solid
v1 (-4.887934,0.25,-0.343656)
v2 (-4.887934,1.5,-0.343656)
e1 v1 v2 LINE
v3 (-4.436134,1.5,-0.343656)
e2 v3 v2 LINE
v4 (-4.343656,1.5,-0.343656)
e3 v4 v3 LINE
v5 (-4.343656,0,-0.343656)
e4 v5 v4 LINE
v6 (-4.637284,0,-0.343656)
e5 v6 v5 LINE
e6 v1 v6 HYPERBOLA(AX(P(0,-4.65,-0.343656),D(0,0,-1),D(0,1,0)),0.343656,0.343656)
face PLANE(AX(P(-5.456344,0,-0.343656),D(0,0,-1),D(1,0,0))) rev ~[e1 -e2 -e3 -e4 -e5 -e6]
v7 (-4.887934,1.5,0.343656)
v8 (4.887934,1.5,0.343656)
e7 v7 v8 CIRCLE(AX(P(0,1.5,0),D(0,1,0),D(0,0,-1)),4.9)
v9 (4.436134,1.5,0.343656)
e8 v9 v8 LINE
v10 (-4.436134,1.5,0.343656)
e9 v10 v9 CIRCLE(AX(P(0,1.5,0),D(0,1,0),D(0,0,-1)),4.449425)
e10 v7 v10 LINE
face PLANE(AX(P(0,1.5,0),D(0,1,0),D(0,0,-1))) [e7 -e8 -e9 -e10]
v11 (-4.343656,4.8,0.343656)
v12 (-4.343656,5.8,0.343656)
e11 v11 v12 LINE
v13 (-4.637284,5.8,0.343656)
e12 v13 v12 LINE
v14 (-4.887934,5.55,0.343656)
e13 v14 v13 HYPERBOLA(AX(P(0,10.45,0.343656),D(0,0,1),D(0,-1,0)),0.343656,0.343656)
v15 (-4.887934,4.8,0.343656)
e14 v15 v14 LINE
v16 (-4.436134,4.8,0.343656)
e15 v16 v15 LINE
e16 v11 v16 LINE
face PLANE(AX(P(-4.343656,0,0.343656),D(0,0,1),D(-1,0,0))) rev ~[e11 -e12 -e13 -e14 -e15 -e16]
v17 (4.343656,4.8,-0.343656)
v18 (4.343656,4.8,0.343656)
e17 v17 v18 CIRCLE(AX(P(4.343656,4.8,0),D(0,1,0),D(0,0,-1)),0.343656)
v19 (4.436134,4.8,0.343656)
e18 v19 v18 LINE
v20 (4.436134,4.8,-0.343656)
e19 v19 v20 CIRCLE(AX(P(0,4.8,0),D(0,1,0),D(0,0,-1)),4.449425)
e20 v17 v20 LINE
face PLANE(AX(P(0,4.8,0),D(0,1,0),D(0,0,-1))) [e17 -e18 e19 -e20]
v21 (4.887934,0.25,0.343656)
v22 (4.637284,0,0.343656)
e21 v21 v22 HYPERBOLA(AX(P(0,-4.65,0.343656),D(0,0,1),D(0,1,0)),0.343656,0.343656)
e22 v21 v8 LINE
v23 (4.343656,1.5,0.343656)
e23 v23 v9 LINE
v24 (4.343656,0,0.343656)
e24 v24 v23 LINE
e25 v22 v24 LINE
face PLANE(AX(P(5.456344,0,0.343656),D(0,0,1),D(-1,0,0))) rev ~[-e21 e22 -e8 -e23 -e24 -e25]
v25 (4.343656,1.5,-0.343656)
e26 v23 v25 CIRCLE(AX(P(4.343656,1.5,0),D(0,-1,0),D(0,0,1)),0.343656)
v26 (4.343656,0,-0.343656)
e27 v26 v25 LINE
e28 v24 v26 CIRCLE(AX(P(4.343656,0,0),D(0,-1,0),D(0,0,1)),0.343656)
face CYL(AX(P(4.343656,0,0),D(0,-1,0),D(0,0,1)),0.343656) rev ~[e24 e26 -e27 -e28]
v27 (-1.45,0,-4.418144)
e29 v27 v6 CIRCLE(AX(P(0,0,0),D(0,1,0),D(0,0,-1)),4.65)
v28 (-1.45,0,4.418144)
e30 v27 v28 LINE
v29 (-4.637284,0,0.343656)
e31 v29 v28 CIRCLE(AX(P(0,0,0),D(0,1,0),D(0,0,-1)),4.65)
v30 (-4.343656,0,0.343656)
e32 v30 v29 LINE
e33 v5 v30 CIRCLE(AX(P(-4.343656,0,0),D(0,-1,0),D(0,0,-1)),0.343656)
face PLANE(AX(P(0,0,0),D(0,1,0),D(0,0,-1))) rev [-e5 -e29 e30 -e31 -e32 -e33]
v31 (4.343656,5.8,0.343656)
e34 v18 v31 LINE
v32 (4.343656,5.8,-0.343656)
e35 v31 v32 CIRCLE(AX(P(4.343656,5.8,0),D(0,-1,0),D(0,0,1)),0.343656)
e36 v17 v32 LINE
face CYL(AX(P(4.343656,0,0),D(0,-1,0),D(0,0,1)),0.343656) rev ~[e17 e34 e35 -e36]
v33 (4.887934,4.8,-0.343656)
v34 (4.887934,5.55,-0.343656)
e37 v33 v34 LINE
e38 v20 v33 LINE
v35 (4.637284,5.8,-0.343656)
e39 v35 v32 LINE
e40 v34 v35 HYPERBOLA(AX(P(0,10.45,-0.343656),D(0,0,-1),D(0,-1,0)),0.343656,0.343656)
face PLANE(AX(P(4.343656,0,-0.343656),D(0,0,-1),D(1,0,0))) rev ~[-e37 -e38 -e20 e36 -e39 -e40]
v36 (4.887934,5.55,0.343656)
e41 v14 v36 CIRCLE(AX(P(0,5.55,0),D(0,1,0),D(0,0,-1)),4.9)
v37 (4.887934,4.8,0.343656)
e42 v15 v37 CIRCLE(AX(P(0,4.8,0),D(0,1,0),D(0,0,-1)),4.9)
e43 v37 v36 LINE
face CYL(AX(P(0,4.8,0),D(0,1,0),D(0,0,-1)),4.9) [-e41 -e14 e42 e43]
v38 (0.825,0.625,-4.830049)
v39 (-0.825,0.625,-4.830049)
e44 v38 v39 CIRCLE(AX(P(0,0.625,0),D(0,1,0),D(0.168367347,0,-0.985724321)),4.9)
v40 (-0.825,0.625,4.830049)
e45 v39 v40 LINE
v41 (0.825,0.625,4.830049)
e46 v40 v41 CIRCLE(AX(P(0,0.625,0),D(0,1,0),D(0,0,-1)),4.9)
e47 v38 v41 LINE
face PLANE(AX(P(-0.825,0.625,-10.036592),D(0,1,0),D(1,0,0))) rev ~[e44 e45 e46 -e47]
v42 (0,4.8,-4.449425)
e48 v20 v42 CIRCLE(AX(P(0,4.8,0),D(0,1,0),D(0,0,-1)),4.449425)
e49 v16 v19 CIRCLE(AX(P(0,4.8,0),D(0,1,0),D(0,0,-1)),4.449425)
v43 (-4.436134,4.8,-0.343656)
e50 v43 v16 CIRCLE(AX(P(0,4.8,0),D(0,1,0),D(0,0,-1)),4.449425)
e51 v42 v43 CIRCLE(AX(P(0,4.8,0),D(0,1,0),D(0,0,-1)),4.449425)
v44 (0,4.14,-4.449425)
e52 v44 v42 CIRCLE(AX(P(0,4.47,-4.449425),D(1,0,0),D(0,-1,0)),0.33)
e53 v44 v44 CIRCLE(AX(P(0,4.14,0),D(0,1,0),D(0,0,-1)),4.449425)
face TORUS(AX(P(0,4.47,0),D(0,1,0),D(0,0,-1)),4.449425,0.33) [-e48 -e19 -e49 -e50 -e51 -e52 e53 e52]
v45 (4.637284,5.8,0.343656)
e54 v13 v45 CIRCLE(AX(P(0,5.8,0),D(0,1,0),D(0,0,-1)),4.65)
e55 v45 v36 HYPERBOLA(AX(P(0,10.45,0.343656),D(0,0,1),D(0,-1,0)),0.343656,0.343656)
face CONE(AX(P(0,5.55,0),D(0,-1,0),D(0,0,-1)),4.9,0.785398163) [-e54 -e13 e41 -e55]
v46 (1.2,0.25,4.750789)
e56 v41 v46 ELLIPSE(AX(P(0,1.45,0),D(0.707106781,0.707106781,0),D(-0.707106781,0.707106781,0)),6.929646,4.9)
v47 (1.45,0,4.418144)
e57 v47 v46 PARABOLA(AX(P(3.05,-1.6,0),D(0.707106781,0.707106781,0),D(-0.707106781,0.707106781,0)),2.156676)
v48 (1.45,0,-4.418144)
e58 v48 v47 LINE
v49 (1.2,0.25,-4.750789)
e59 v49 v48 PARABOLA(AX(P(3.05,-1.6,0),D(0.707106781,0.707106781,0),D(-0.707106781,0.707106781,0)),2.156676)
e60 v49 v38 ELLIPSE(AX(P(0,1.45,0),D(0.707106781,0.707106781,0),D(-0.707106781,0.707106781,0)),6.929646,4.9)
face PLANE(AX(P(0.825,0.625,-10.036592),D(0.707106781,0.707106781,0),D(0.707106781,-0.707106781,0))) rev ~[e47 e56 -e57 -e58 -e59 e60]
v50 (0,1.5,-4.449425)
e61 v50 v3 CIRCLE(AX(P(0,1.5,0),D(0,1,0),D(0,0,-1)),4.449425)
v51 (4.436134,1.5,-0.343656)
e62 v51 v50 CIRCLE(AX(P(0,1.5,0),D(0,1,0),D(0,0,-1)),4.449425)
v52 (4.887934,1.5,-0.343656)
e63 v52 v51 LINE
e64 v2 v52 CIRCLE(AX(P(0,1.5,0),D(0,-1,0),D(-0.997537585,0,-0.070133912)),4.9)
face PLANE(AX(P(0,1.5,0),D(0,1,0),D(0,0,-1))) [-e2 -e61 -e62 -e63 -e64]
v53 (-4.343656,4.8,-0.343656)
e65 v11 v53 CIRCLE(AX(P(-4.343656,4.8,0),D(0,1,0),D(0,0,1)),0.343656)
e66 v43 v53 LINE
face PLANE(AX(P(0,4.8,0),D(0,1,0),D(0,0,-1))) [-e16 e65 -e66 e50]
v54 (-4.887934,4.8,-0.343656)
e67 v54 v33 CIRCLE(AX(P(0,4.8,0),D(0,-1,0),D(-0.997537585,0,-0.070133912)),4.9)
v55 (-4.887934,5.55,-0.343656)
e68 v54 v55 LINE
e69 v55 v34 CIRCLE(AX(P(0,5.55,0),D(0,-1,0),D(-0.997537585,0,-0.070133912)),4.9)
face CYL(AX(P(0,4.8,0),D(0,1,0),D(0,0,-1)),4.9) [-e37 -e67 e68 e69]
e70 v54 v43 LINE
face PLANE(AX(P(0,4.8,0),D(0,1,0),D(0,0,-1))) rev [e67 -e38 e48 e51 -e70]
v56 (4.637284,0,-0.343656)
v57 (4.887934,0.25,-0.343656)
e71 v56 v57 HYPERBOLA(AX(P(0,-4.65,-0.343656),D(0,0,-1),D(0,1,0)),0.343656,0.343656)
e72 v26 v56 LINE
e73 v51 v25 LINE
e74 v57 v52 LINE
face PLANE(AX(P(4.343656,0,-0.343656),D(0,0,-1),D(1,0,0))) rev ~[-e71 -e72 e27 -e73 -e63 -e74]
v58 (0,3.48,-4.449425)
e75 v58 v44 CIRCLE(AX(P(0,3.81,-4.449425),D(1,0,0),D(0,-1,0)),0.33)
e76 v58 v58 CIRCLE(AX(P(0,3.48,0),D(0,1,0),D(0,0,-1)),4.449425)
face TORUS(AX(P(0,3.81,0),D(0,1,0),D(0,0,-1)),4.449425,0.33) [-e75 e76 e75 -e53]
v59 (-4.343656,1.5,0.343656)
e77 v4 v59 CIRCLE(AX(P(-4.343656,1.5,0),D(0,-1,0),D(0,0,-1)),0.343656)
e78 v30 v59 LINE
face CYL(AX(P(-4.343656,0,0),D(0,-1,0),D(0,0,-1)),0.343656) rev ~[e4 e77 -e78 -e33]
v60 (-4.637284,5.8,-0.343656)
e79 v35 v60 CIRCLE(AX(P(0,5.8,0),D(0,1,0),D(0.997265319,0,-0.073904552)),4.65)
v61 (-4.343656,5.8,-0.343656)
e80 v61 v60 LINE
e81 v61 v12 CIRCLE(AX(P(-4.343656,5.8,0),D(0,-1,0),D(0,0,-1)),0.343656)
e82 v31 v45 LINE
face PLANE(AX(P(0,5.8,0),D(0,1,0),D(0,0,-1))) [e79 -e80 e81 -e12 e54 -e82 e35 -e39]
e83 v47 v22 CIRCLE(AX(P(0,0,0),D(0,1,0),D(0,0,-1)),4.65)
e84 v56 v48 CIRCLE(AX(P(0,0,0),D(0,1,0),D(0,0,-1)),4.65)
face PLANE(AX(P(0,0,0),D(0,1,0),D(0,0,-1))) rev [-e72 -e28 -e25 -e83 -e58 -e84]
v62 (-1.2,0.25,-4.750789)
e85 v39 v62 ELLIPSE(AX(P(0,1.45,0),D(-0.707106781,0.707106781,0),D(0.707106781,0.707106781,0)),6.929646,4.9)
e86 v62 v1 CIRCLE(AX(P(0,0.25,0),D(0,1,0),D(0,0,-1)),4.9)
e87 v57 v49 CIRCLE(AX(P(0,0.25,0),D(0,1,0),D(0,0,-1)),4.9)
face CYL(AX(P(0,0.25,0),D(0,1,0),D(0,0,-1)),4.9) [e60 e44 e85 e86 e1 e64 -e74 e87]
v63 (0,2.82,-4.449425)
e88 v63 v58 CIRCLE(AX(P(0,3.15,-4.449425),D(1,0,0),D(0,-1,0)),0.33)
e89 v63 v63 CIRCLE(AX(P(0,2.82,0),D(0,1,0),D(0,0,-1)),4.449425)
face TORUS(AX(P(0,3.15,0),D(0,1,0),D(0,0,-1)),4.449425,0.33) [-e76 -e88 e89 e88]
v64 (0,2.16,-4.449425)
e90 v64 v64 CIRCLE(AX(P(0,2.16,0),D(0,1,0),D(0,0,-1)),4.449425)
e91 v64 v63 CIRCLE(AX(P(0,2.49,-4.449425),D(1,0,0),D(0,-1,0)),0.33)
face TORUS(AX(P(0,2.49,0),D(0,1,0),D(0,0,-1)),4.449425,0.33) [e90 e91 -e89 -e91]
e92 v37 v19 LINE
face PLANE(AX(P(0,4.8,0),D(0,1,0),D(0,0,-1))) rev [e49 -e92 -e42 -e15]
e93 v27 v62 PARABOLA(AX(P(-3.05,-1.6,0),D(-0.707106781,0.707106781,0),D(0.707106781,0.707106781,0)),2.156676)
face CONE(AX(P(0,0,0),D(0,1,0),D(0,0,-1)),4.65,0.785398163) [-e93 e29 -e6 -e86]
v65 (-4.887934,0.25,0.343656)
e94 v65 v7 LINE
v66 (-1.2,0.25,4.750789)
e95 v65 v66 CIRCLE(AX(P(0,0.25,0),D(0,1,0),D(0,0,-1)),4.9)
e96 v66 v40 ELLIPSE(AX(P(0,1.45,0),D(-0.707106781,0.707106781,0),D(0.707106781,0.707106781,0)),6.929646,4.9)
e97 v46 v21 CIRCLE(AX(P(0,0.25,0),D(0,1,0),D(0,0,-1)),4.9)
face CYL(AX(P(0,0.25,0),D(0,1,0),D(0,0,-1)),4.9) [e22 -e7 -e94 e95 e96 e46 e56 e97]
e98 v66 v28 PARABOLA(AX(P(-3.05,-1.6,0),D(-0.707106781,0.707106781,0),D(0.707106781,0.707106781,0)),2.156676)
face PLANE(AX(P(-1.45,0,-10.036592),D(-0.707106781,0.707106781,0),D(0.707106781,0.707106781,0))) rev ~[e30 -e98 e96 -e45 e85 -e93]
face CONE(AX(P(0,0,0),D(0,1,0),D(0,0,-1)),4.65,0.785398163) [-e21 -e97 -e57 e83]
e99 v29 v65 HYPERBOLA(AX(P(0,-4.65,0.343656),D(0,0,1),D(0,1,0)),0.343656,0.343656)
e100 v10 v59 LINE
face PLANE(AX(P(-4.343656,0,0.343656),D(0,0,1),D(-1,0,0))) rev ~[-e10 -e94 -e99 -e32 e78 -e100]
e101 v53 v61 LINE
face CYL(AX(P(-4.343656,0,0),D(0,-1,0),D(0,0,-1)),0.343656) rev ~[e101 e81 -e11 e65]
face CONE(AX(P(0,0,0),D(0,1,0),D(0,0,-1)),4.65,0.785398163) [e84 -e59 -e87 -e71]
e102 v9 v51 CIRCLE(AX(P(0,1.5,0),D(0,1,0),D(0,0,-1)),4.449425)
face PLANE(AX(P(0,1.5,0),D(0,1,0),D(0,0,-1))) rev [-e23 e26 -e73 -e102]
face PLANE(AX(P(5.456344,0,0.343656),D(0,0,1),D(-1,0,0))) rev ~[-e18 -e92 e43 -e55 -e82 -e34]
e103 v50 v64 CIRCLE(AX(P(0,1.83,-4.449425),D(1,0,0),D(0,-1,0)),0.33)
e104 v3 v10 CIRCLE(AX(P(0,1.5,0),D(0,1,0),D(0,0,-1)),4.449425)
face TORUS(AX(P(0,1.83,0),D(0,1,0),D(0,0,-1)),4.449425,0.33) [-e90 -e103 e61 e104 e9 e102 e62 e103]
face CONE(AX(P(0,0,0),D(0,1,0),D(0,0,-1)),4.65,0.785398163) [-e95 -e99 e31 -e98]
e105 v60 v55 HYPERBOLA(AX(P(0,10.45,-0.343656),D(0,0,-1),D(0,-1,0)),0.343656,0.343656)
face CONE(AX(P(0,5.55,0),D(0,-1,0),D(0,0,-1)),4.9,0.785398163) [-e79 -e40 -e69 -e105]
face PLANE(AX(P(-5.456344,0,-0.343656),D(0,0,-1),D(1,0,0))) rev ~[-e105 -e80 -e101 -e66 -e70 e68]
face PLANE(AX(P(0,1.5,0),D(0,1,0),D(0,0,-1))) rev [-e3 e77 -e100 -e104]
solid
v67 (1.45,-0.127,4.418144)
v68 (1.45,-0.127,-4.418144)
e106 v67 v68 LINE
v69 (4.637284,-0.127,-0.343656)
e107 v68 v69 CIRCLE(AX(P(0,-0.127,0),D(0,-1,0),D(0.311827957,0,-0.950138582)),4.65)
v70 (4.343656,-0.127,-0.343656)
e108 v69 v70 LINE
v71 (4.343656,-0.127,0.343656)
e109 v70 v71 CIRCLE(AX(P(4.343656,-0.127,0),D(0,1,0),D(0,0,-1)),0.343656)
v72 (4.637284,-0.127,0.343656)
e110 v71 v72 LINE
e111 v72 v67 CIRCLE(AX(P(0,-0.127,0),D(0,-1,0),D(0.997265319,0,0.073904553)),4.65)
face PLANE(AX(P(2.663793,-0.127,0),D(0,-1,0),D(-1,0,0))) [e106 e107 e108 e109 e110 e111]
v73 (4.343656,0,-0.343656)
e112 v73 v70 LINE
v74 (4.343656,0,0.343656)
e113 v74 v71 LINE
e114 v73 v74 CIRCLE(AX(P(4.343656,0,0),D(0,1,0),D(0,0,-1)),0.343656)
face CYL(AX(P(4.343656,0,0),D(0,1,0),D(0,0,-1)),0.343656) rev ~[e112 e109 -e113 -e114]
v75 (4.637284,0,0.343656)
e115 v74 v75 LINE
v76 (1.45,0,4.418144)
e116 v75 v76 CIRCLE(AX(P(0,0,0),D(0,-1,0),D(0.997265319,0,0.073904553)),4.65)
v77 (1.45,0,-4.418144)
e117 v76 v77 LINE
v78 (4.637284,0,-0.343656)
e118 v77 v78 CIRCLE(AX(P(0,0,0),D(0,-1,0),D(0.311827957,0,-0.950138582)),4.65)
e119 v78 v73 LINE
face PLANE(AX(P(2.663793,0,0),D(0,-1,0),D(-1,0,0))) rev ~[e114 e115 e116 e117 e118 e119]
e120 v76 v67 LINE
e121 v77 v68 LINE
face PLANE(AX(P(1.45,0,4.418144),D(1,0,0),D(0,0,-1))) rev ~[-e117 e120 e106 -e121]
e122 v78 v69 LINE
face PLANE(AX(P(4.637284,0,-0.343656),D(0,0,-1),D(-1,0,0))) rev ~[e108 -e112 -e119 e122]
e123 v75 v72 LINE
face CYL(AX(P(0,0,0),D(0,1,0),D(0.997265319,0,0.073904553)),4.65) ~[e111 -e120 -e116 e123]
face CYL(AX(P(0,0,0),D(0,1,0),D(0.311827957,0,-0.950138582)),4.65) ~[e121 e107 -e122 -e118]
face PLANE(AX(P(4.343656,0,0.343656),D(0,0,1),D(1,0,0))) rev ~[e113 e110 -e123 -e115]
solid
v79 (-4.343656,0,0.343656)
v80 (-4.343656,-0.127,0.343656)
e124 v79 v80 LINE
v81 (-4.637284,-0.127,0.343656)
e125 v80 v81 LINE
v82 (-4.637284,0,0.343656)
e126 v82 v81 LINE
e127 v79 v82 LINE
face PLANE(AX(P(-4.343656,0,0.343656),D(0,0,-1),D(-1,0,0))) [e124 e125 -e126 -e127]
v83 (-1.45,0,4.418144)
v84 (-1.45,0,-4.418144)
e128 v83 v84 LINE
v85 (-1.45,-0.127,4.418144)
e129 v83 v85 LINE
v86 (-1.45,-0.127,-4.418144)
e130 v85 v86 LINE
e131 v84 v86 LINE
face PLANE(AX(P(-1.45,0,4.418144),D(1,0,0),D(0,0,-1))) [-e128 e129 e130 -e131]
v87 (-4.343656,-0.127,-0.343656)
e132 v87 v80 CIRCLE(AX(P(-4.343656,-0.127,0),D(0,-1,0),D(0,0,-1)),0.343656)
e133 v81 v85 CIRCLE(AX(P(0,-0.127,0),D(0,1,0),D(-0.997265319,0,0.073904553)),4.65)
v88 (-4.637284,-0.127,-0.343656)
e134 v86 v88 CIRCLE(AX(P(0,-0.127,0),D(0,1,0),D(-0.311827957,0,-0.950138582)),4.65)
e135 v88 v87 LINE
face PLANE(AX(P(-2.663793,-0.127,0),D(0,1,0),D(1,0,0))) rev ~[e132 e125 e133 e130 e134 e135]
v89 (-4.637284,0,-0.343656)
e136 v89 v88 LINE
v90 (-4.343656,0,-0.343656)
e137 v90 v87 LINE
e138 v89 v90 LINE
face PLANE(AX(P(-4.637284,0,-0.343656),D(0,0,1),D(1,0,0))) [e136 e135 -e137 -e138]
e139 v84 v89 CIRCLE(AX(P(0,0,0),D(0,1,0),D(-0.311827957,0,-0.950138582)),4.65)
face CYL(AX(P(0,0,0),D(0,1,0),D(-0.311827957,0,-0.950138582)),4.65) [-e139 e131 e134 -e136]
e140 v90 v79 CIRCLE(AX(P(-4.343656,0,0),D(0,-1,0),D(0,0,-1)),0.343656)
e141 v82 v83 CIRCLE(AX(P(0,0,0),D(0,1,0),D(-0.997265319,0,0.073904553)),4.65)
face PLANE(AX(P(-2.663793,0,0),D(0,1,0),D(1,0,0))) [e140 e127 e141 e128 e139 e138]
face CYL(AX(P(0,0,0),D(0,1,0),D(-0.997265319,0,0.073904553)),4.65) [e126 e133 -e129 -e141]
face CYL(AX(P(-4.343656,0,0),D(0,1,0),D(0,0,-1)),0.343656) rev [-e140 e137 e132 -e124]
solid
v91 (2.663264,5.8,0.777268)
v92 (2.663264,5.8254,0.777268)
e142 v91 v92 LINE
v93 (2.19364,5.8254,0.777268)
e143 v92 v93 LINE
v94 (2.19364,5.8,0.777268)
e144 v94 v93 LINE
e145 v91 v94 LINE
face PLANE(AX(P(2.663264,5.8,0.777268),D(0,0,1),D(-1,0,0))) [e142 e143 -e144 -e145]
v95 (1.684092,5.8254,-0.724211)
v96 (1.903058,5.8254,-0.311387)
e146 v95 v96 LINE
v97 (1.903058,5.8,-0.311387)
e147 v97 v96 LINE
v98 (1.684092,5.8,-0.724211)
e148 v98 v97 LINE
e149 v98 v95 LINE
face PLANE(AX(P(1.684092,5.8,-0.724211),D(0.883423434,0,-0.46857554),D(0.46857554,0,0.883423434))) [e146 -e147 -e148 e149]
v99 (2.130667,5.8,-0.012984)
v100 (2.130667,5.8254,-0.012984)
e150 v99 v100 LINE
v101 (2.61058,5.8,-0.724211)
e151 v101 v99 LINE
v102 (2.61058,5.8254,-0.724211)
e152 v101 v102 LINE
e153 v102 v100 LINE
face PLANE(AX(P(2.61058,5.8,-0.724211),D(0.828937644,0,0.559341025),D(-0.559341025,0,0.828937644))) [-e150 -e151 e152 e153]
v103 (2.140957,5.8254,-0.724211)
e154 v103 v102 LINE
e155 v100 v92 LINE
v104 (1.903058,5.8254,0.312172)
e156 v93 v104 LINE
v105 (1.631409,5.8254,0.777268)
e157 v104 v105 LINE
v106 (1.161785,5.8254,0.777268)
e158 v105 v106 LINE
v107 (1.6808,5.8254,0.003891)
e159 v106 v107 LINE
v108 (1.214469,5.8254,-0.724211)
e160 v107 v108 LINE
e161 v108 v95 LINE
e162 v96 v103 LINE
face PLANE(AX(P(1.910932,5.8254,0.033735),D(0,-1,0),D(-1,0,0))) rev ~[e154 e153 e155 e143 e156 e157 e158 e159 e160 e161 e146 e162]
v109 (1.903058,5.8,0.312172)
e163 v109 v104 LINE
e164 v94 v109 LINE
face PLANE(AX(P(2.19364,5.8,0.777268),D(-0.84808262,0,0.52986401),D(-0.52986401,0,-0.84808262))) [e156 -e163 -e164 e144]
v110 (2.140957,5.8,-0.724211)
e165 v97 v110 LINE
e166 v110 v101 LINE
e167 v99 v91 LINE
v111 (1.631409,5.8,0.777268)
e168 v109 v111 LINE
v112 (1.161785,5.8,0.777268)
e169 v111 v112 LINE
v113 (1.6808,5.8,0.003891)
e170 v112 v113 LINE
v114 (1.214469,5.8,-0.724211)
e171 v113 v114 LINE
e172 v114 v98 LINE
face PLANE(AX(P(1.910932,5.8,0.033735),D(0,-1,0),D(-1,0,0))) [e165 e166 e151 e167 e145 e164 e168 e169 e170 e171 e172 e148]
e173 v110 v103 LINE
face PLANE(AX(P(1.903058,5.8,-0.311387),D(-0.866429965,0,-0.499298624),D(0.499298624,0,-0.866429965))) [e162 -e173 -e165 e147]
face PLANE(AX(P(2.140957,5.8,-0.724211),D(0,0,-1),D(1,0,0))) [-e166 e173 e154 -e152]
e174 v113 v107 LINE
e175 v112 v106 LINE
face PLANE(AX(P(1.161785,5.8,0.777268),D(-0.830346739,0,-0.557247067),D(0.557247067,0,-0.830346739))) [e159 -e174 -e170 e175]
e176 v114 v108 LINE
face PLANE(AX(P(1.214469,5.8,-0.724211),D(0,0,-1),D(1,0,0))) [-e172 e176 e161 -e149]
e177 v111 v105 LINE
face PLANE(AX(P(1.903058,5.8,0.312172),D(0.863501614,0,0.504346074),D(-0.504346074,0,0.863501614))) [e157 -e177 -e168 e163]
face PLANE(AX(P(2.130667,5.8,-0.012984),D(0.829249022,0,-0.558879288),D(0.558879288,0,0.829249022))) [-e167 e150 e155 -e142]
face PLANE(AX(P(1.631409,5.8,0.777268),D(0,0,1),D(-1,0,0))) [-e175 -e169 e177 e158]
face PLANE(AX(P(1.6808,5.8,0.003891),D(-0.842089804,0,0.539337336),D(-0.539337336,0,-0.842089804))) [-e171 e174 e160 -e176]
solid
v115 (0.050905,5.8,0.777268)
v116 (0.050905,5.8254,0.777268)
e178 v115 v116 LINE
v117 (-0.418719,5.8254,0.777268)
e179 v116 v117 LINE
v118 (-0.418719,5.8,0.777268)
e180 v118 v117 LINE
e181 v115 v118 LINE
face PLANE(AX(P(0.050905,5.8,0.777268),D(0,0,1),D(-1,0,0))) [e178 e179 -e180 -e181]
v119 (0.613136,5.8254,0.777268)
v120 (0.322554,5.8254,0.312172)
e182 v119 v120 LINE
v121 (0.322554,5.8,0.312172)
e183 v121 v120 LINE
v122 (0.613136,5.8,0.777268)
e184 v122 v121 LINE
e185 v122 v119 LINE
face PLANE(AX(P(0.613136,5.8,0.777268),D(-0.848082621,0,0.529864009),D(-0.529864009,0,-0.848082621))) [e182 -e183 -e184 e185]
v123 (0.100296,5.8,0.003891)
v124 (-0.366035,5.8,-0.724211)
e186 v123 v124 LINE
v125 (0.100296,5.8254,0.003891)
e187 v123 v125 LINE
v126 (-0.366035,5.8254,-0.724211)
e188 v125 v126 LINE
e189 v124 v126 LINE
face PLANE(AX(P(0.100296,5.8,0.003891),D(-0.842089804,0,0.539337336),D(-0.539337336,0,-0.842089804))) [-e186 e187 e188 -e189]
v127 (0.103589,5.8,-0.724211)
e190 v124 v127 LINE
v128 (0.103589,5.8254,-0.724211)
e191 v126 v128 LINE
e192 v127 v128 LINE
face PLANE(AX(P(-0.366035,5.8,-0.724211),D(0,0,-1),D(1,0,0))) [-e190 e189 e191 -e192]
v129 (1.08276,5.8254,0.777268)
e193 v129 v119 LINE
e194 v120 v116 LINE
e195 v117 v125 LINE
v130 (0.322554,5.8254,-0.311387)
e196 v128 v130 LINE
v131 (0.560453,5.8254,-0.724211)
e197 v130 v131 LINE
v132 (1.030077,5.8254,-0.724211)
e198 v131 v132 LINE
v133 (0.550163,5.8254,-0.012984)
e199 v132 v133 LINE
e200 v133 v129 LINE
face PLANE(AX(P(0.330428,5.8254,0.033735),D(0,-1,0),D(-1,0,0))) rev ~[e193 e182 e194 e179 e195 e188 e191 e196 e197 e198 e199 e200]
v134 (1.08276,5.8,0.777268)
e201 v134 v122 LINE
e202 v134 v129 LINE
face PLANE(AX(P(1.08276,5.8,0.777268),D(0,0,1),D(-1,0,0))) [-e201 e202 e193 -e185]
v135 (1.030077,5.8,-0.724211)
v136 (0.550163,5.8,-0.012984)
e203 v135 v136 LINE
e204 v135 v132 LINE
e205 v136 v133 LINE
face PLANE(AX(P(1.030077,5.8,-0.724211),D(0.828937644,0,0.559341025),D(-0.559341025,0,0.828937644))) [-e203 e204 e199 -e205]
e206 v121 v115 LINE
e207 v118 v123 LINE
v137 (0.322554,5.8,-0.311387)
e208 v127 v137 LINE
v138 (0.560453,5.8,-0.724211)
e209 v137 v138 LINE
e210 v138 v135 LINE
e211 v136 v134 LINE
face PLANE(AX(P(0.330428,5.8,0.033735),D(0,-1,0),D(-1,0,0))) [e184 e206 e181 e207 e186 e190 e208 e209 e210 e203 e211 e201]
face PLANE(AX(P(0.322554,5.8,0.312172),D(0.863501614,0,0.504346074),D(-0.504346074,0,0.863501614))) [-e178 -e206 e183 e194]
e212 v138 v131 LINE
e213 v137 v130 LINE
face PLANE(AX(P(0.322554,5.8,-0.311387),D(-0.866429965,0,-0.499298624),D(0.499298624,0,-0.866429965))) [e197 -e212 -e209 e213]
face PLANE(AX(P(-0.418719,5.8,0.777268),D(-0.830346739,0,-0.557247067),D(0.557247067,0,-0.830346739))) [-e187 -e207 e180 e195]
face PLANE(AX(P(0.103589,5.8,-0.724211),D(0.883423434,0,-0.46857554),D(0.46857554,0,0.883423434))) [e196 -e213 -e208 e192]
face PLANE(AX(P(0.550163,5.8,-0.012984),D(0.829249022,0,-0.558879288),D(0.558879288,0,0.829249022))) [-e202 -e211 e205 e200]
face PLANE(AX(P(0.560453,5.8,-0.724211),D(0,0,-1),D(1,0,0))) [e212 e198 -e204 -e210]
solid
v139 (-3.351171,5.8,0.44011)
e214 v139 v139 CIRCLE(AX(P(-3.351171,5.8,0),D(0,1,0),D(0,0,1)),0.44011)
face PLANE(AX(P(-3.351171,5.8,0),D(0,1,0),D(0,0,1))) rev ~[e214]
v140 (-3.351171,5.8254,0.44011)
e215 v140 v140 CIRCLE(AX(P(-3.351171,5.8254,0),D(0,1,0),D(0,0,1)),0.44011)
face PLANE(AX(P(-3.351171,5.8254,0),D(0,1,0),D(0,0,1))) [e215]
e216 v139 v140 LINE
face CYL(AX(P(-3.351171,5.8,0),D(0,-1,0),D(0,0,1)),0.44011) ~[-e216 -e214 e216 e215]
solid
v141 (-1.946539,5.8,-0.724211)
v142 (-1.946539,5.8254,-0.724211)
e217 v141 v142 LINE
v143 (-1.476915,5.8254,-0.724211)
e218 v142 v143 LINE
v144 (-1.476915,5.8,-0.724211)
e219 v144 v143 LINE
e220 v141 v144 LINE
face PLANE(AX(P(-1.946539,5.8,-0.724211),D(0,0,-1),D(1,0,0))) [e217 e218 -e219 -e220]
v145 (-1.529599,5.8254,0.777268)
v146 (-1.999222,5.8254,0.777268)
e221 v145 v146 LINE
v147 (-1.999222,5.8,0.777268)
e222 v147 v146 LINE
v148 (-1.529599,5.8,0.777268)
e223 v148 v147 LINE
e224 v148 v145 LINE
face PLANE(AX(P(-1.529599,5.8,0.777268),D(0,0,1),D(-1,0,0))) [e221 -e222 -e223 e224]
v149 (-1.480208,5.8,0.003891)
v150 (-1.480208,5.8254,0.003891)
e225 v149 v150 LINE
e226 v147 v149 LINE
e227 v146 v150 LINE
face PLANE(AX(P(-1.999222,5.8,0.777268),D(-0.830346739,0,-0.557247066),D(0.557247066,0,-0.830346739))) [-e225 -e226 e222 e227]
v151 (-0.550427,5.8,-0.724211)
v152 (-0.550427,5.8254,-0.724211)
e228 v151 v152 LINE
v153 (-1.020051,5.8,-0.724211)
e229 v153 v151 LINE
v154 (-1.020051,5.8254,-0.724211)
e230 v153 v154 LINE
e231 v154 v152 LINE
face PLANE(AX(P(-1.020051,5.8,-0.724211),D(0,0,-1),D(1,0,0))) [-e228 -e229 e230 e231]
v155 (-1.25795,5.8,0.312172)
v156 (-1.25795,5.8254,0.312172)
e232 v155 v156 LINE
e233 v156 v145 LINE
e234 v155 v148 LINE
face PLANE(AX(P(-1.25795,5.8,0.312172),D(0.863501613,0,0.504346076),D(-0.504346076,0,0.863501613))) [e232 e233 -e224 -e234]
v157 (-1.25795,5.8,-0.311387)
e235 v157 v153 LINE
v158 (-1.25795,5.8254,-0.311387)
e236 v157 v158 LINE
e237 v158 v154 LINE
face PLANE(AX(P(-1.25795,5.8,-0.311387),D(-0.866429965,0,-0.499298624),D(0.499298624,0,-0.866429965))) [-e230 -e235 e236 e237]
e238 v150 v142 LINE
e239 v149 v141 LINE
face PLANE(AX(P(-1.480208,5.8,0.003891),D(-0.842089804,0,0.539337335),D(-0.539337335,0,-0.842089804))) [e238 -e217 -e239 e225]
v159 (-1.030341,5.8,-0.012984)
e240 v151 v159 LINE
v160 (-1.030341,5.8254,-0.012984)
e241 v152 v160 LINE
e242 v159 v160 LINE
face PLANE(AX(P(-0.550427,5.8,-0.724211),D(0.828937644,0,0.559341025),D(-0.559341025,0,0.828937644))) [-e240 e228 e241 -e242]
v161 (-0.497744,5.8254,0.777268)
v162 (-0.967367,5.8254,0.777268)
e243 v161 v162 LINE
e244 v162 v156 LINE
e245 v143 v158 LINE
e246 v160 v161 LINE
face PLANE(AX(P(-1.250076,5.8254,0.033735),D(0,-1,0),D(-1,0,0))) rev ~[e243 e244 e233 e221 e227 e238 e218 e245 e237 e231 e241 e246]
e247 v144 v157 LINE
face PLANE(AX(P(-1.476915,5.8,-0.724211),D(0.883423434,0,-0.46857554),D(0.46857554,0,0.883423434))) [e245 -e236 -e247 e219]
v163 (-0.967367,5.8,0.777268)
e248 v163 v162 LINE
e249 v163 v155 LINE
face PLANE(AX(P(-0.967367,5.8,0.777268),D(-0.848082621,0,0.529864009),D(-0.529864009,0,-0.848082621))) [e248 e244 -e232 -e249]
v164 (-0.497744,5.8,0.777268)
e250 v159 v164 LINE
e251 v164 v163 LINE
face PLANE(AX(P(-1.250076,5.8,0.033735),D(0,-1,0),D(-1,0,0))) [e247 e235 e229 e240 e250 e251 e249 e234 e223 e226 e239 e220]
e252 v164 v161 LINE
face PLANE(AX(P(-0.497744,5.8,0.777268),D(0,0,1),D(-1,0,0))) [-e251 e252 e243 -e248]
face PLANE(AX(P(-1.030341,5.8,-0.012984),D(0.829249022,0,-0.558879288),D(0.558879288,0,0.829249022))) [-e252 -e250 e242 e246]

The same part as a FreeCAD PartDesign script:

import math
import FreeCAD as App
import Part
import Sketcher

doc = App.newDocument("Part")
body = doc.addObject("PartDesign::Body", "Body")

# Sketch on XY plane
sketch1 = doc.addObject("Sketcher::SketchObject", "Sketch")
body.addObject(sketch1)
sketch1.AttachmentSupport = (doc.XY_Plane, [""])
sketch1.MapMode = "FlatFace"
sketch1.addGeometry([
    Part.LineSegment(App.Vector(0, 0, 0), App.Vector(4.65, 0, 0)),  # 0
    Part.LineSegment(App.Vector(4.65, 0, 0), App.Vector(4.9, 0.25, 0)),  # 1
    Part.LineSegment(App.Vector(4.9, 0.25, 0), App.Vector(4.9, 1.5, 0)),  # 2
    Part.LineSegment(App.Vector(4.9, 1.5, 0), App.Vector(4, 1.5, 0)),  # 3
    Part.LineSegment(App.Vector(4, 1.5, 0), App.Vector(4, 4.8, 0)),  # 4
    Part.LineSegment(App.Vector(4, 4.8, 0), App.Vector(4.9, 4.8, 0)),  # 5
    Part.LineSegment(App.Vector(4.9, 4.8, 0), App.Vector(4.9, 5.55, 0)),  # 6
    Part.LineSegment(App.Vector(4.9, 5.55, 0), App.Vector(4.65, 5.8, 0)),  # 7
    Part.LineSegment(App.Vector(4.65, 5.8, 0), App.Vector(0, 5.8, 0)),  # 8
    Part.LineSegment(App.Vector(0, 5.8, 0), App.Vector(0, 0, 0)),  # 9
], False)
sketch1.addConstraint([
    Sketcher.Constraint("Coincident", 0, 2, 1, 1),
    Sketcher.Constraint("Coincident", 1, 2, 2, 1),
    Sketcher.Constraint("Coincident", 2, 2, 3, 1),
    Sketcher.Constraint("Coincident", 3, 2, 4, 1),
    Sketcher.Constraint("Coincident", 4, 2, 5, 1),
    Sketcher.Constraint("Coincident", 5, 2, 6, 1),
    Sketcher.Constraint("Coincident", 6, 2, 7, 1),
    Sketcher.Constraint("Coincident", 7, 2, 8, 1),
    Sketcher.Constraint("Coincident", 8, 2, 9, 1),
    Sketcher.Constraint("Coincident", 9, 2, 0, 1),
    Sketcher.Constraint("Horizontal", 0),
    Sketcher.Constraint("Vertical", 2),
    Sketcher.Constraint("Horizontal", 3),
    Sketcher.Constraint("Vertical", 4),
    Sketcher.Constraint("Horizontal", 5),
    Sketcher.Constraint("Vertical", 6),
    Sketcher.Constraint("Horizontal", 8),
    Sketcher.Constraint("Vertical", 9),
    Sketcher.Constraint("Coincident", 9, 2, -1, 1),
    Sketcher.Constraint("Perpendicular", 1, 7),
    Sketcher.Constraint("Vertical", 2, 2, 5, 2),
    Sketcher.Constraint("Vertical", 0, 2, 7, 2),
    Sketcher.Constraint("Equal", 1, 7),
    Sketcher.Constraint("DistanceX", 3, 2, 3, 1, 0.9),
    Sketcher.Constraint("DistanceY", 4, 1, 4, 2, 3.3),
    Sketcher.Constraint("DistanceY", 9, 2, 9, 1, 5.8),
    Sketcher.Constraint("DistanceX", -1, 1, 3, 2, 4.0),
    Sketcher.Constraint("DistanceY", 5, 2, 7, 2, 1.0),
    Sketcher.Constraint("DistanceX", 0, 1, 0, 2, 4.65),
])
revolution = doc.addObject("PartDesign::Revolution", "Revolution")
body.addObject(revolution)
revolution.Profile = sketch1
revolution.ReferenceAxis = (sketch1, ["V_Axis"])
revolution.Angle = 360

# Sketch on XY plane
sketch2 = doc.addObject("Sketcher::SketchObject", "Sketch001")
body.addObject(sketch2)
sketch2.AttachmentSupport = (doc.XY_Plane, [""])
sketch2.MapMode = "FlatFace"
sketch2.addGeometry([
    Part.LineSegment(App.Vector(-0.825, 0.625, 0), App.Vector(-1.45, 0, 0)),
    Part.LineSegment(App.Vector(-1.45, 0, 0), App.Vector(1.45, 0, 0)),
    Part.LineSegment(App.Vector(1.45, 0, 0), App.Vector(0.825, 0.625, 0)),
    Part.LineSegment(App.Vector(0.825, 0.625, 0), App.Vector(-0.825, 0.625, 0)),
], False)
sketch2.addConstraint([
    Sketcher.Constraint("Coincident", 0, 2, 1, 1),
    Sketcher.Constraint("Coincident", 1, 2, 2, 1),
    Sketcher.Constraint("Coincident", 2, 2, 3, 1),
    Sketcher.Constraint("Coincident", 3, 2, 0, 1),
    Sketcher.Constraint("Horizontal", 1),
    Sketcher.Constraint("Horizontal", 3),
    Sketcher.Constraint("Symmetric", 0, 2, 1, 2, -1, 1),
    Sketcher.Constraint("Perpendicular", 0, 2),
    Sketcher.Constraint("Equal", 0, 2),
    Sketcher.Constraint("DistanceX", 1, 1, 1, 2, 2.9),
    Sketcher.Constraint("DistanceX", 3, 2, 3, 1, 1.65),
])
pocket1 = doc.addObject("PartDesign::Pocket", "Pocket")
body.addObject(pocket1)
pocket1.Profile = sketch2
pocket1.Type = "ThroughAll"
pocket1.Midplane = True

# Sketch on XZ plane
sketch3 = doc.addObject("Sketcher::SketchObject", "Sketch002")
body.addObject(sketch3)
sketch3.AttachmentSupport = (doc.XZ_Plane, [""])
sketch3.MapMode = "FlatFace"
sketch3.addGeometry([
    Part.LineSegment(App.Vector(-4.343656, -0.343656, 0), App.Vector(-5.456344, -0.343656, 0)),  # 0
    Part.ArcOfCircle(Part.Circle(App.Vector(-5.456344, 0, 0), App.Vector(0, 0, 1), 0.343656), math.radians(90), math.radians(270)),  # 1
    Part.LineSegment(App.Vector(-5.456344, 0.343656, 0), App.Vector(-4.343656, 0.343656, 0)),  # 2
    Part.ArcOfCircle(Part.Circle(App.Vector(-4.343656, 0, 0), App.Vector(0, 0, 1), 0.343656), math.radians(-90), math.radians(90)),  # 3
    Part.LineSegment(App.Vector(4.343656, 0.343656, 0), App.Vector(5.456344, 0.343656, 0)),  # 4
    Part.ArcOfCircle(Part.Circle(App.Vector(5.456344, 0, 0), App.Vector(0, 0, 1), 0.343656), math.radians(-90), math.radians(90)),  # 5
    Part.LineSegment(App.Vector(5.456344, -0.343656, 0), App.Vector(4.343656, -0.343656, 0)),  # 6
    Part.ArcOfCircle(Part.Circle(App.Vector(4.343656, 0, 0), App.Vector(0, 0, 1), 0.343656), math.radians(90), math.radians(270)),  # 7
], False)
sketch3.addConstraint([
    Sketcher.Constraint("Tangent", 0, 2, 1, 2),
    Sketcher.Constraint("Tangent", 1, 1, 2, 1),
    Sketcher.Constraint("Tangent", 2, 2, 3, 2),
    Sketcher.Constraint("Tangent", 3, 1, 0, 1),
    Sketcher.Constraint("Tangent", 4, 2, 5, 2),
    Sketcher.Constraint("Tangent", 5, 1, 6, 1),
    Sketcher.Constraint("Tangent", 6, 2, 7, 2),
    Sketcher.Constraint("Tangent", 7, 1, 4, 1),
    Sketcher.Constraint("Horizontal", 0),
    Sketcher.Constraint("Horizontal", 2),
    Sketcher.Constraint("Horizontal", 4),
    Sketcher.Constraint("Horizontal", 6),
    Sketcher.Constraint("Equal", 3, 5),
    Sketcher.Constraint("Symmetric", 1, 3, 5, 3, -1, 1),
    Sketcher.Constraint("Symmetric", 3, 3, 7, 3, -2),
    Sketcher.Constraint("DistanceX", 3, 3, 5, 3, 9.8),
    Sketcher.Constraint("Radius", 1, 0.343656),
    Sketcher.Constraint("DistanceX", 0, 2, 0, 1, 1.112688),
])
pocket2 = doc.addObject("PartDesign::Pocket", "Pocket001")
body.addObject(pocket2)
pocket2.Profile = sketch3
pocket2.Type = "ThroughAll"

# Sketch on YZ plane
sketch4 = doc.addObject("Sketcher::SketchObject", "Sketch003")
body.addObject(sketch4)
sketch4.AttachmentSupport = (doc.YZ_Plane, [""])
sketch4.MapMode = "FlatFace"
sketch4.addGeometry([
    Part.LineSegment(App.Vector(4.8, -4, 0), App.Vector(1.5, -4, 0)),  # 0
    Part.LineSegment(App.Vector(1.5, -4, 0), App.Vector(1.5, -4.449425, 0)),  # 1
    Part.ArcOfCircle(Part.Circle(App.Vector(1.83, -4.449425, 0), App.Vector(0, 0, 1), 0.33), math.radians(180), math.radians(360)),  # 2
    Part.ArcOfCircle(Part.Circle(App.Vector(2.49, -4.449425, 0), App.Vector(0, 0, 1), 0.33), math.radians(180), math.radians(360)),  # 3
    Part.ArcOfCircle(Part.Circle(App.Vector(3.15, -4.449425, 0), App.Vector(0, 0, 1), 0.33), math.radians(180), math.radians(360)),  # 4
    Part.ArcOfCircle(Part.Circle(App.Vector(3.81, -4.449425, 0), App.Vector(0, 0, 1), 0.33), math.radians(180), math.radians(360)),  # 5
    Part.ArcOfCircle(Part.Circle(App.Vector(4.47, -4.449425, 0), App.Vector(0, 0, 1), 0.33), math.radians(180), math.radians(360)),  # 6
    Part.LineSegment(App.Vector(4.8, -4.449425, 0), App.Vector(4.8, -4, 0)),  # 7
], False)
sketch4.addConstraint([
    Sketcher.Constraint("Coincident", 0, 2, 1, 1),
    Sketcher.Constraint("Tangent", 1, 2, 2, 1),
    Sketcher.Constraint("Tangent", 2, 2, 3, 1),
    Sketcher.Constraint("Tangent", 3, 2, 4, 1),
    Sketcher.Constraint("Tangent", 4, 2, 5, 1),
    Sketcher.Constraint("Tangent", 5, 2, 6, 1),
    Sketcher.Constraint("Tangent", 6, 2, 7, 1),
    Sketcher.Constraint("Coincident", 7, 2, 0, 1),
    Sketcher.Constraint("Horizontal", 0),
    Sketcher.Constraint("Vertical", 1),
    Sketcher.Constraint("Vertical", 7),
    Sketcher.Constraint("Equal", 2, 3),
    Sketcher.Constraint("Equal", 3, 4),
    Sketcher.Constraint("Equal", 4, 5),
    Sketcher.Constraint("Equal", 5, 6),
    Sketcher.Constraint("Horizontal", 2, 3, 3, 3),
    Sketcher.Constraint("Horizontal", 3, 3, 4, 3),
    Sketcher.Constraint("Horizontal", 4, 3, 5, 3),
    Sketcher.Constraint("Horizontal", 5, 3, 6, 3),
    Sketcher.Constraint("Radius", 2, 0.33),
    Sketcher.Constraint("DistanceY", 0, 2, -1, 1, 4.0),
    Sketcher.Constraint("DistanceX", -1, 1, 0, 2, 1.5),
    Sketcher.Constraint("DistanceY", 1, 2, 1, 1, 0.449425),
])
revolution2 = doc.addObject("PartDesign::Revolution", "Revolution001")
body.addObject(revolution2)
revolution2.Profile = sketch4
revolution2.ReferenceAxis = (sketch4, ["H_Axis"])
revolution2.Angle = 360
body2 = doc.addObject("PartDesign::Body", "Body001")

# Sketch on XZ plane
sketch5 = doc.addObject("Sketcher::SketchObject", "Sketch004")
body2.addObject(sketch5)
sketch5.AttachmentSupport = (doc.getObject("XZ_Plane001"), [""])
sketch5.MapMode = "FlatFace"
sketch5.addGeometry([
    Part.LineSegment(App.Vector(-1.45, 4.418144, 0), App.Vector(-1.45, -4.418144, 0)),  # 0
    Part.ArcOfCircle(Part.Circle(App.Vector(0, 0, 0), App.Vector(0, 0, 1), 4.65), math.radians(-175.761717), math.radians(-108.169426)),  # 1
    Part.LineSegment(App.Vector(-4.637284, -0.343656, 0), App.Vector(-4.343656, -0.343656, 0)),  # 2
    Part.ArcOfCircle(Part.Circle(App.Vector(-4.343656, 0, 0), App.Vector(0, 0, 1), 0.343656), math.radians(-90), math.radians(90)),  # 3
    Part.LineSegment(App.Vector(-4.343656, 0.343656, 0), App.Vector(-4.637284, 0.343656, 0)),  # 4
    Part.ArcOfCircle(Part.Circle(App.Vector(0, 0, 0), App.Vector(0, 0, 1), 4.65), math.radians(108.169426), math.radians(175.761717)),  # 5
], False)
sketch5.addConstraint([
    Sketcher.Constraint("Coincident", 0, 2, 1, 2),
    Sketcher.Constraint("Coincident", 1, 1, 2, 1),
    Sketcher.Constraint("Tangent", 2, 2, 3, 1),
    Sketcher.Constraint("Tangent", 3, 2, 4, 1),
    Sketcher.Constraint("Coincident", 4, 2, 5, 2),
    Sketcher.Constraint("Coincident", 5, 1, 0, 1),
    Sketcher.Constraint("Vertical", 0),
    Sketcher.Constraint("Horizontal", 2),
    Sketcher.Constraint("Horizontal", 4),
    Sketcher.Constraint("Coincident", 1, 3, -1, 1),
    Sketcher.Constraint("Coincident", 5, 3, -1, 1),
    Sketcher.Constraint("Equal", 1, 5),
    Sketcher.Constraint("PointOnObject", 3, 3, -1),
    Sketcher.Constraint("Radius", 1, 4.65),
    Sketcher.Constraint("DistanceX", 0, 2, -1, 1, 1.45),
    Sketcher.Constraint("Radius", 3, 0.343656),
    Sketcher.Constraint("DistanceX", 2, 1, 2, 2, 0.293628),
])
pad1 = doc.addObject("PartDesign::Pad", "Pad")
body2.addObject(pad1)
pad1.Profile = sketch5
pad1.Length = 0.127
body3 = doc.addObject("PartDesign::Body", "Body002")

# Sketch on XZ plane
sketch6 = doc.addObject("Sketcher::SketchObject", "Sketch005")
body3.addObject(sketch6)
sketch6.AttachmentSupport = (doc.getObject("XZ_Plane002"), [""])
sketch6.MapMode = "FlatFace"
sketch6.addGeometry([
    Part.LineSegment(App.Vector(4.637284, 0.343656, 0), App.Vector(4.343656, 0.343656, 0)),  # 0
    Part.ArcOfCircle(Part.Circle(App.Vector(4.343656, 0, 0), App.Vector(0, 0, 1), 0.343656), math.radians(90), math.radians(270)),  # 1
    Part.LineSegment(App.Vector(4.343656, -0.343656, 0), App.Vector(4.637284, -0.343656, 0)),  # 2
    Part.ArcOfCircle(Part.Circle(App.Vector(0, 0, 0), App.Vector(0, 0, 1), 4.65), math.radians(-71.830574), math.radians(-4.238283)),  # 3
    Part.LineSegment(App.Vector(1.45, -4.418144, 0), App.Vector(1.45, 4.418144, 0)),  # 4
    Part.ArcOfCircle(Part.Circle(App.Vector(0, 0, 0), App.Vector(0, 0, 1), 4.65), math.radians(4.238283), math.radians(71.830574)),  # 5
], False)
sketch6.addConstraint([
    Sketcher.Constraint("Tangent", 0, 2, 1, 1),
    Sketcher.Constraint("Tangent", 1, 2, 2, 1),
    Sketcher.Constraint("Coincident", 2, 2, 3, 2),
    Sketcher.Constraint("Coincident", 3, 1, 4, 1),
    Sketcher.Constraint("Coincident", 4, 2, 5, 2),
    Sketcher.Constraint("Coincident", 5, 1, 0, 1),
    Sketcher.Constraint("Horizontal", 0),
    Sketcher.Constraint("Horizontal", 2),
    Sketcher.Constraint("Vertical", 4),
    Sketcher.Constraint("Coincident", 3, 3, -1, 1),
    Sketcher.Constraint("Coincident", 5, 3, -1, 1),
    Sketcher.Constraint("Equal", 3, 5),
    Sketcher.Constraint("PointOnObject", 1, 3, -1),
    Sketcher.Constraint("Radius", 3, 4.65),
    Sketcher.Constraint("DistanceX", -1, 1, 3, 1, 1.45),
    Sketcher.Constraint("Radius", 1, 0.343656),
    Sketcher.Constraint("DistanceX", 0, 2, 0, 1, 0.293628),
])
pad2 = doc.addObject("PartDesign::Pad", "Pad001")
body3.addObject(pad2)
pad2.Profile = sketch6
pad2.Length = 0.127
body4 = doc.addObject("PartDesign::Body", "Body003")

# Sketch on XZ plane
sketch7 = doc.addObject("Sketcher::SketchObject", "Sketch006")
body4.addObject(sketch7)
sketch7.AttachmentSupport = (doc.getObject("XZ_Plane003"), [""])
sketch7.MapMode = "FlatFace"
sketch7.AttachmentOffset = App.Placement(App.Vector(0, 0, -5.8), App.Rotation())
sketch7.addGeometry(Part.Circle(App.Vector(-3.351171, 0, 0), App.Vector(0, 0, 1), 0.44011), False)
sketch7.addConstraint([
    Sketcher.Constraint("PointOnObject", 0, 3, -1),
    Sketcher.Constraint("Diameter", 0, 0.88022),
    Sketcher.Constraint("DistanceX", 0, 3, -1, 1, 3.351171),
])
pad3 = doc.addObject("PartDesign::Pad", "Pad002")
body4.addObject(pad3)
pad3.Profile = sketch7
pad3.Length = 0.0254
pad3.Reversed = True
body5 = doc.addObject("PartDesign::Body", "Body004")

# Sketch on XZ plane
sketch8 = doc.addObject("Sketcher::SketchObject", "Sketch007")
body5.addObject(sketch8)
sketch8.AttachmentSupport = (doc.getObject("XZ_Plane004"), [""])
sketch8.MapMode = "FlatFace"
sketch8.AttachmentOffset = App.Placement(App.Vector(0, 0, -5.8), App.Rotation())
sketch8.addGeometry([
    Part.LineSegment(App.Vector(-1.480208, 0.003891, 0), App.Vector(-1.999222, 0.777268, 0)),  # 0
    Part.LineSegment(App.Vector(-1.999222, 0.777268, 0), App.Vector(-1.529599, 0.777268, 0)),  # 1
    Part.LineSegment(App.Vector(-1.529599, 0.777268, 0), App.Vector(-1.25795, 0.312172, 0)),  # 2
    Part.LineSegment(App.Vector(-1.25795, 0.312172, 0), App.Vector(-0.967367, 0.777268, 0)),  # 3
    Part.LineSegment(App.Vector(-0.967367, 0.777268, 0), App.Vector(-0.497744, 0.777268, 0)),  # 4
    Part.LineSegment(App.Vector(-0.497744, 0.777268, 0), App.Vector(-1.030341, -0.012984, 0)),  # 5
    Part.LineSegment(App.Vector(-1.030341, -0.012984, 0), App.Vector(-0.550427, -0.724211, 0)),  # 6
    Part.LineSegment(App.Vector(-0.550427, -0.724211, 0), App.Vector(-1.020051, -0.724211, 0)),  # 7
    Part.LineSegment(App.Vector(-1.020051, -0.724211, 0), App.Vector(-1.25795, -0.311387, 0)),  # 8
    Part.LineSegment(App.Vector(-1.25795, -0.311387, 0), App.Vector(-1.476915, -0.724211, 0)),  # 9
    Part.LineSegment(App.Vector(-1.476915, -0.724211, 0), App.Vector(-1.946539, -0.724211, 0)),  # 10
    Part.LineSegment(App.Vector(-1.946539, -0.724211, 0), App.Vector(-1.480208, 0.003891, 0)),  # 11
], False)
sketch8.addConstraint([
    Sketcher.Constraint("Coincident", 0, 2, 1, 1),
    Sketcher.Constraint("Coincident", 1, 2, 2, 1),
    Sketcher.Constraint("Coincident", 2, 2, 3, 1),
    Sketcher.Constraint("Coincident", 3, 2, 4, 1),
    Sketcher.Constraint("Coincident", 4, 2, 5, 1),
    Sketcher.Constraint("Coincident", 5, 2, 6, 1),
    Sketcher.Constraint("Coincident", 6, 2, 7, 1),
    Sketcher.Constraint("Coincident", 7, 2, 8, 1),
    Sketcher.Constraint("Coincident", 8, 2, 9, 1),
    Sketcher.Constraint("Coincident", 9, 2, 10, 1),
    Sketcher.Constraint("Coincident", 10, 2, 11, 1),
    Sketcher.Constraint("Coincident", 11, 2, 0, 1),
    Sketcher.Constraint("Horizontal", 1),
    Sketcher.Constraint("Horizontal", 4),
    Sketcher.Constraint("Horizontal", 7),
    Sketcher.Constraint("Horizontal", 10),
    Sketcher.Constraint("Horizontal", 1, 2, 3, 2),
    Sketcher.Constraint("Horizontal", 7, 2, 9, 2),
    Sketcher.Constraint("Vertical", 2, 2, 8, 2),
    Sketcher.Constraint("Equal", 1, 4),
    Sketcher.Constraint("Equal", 4, 7),
    Sketcher.Constraint("Equal", 7, 10),
    Sketcher.Constraint("Distance", 9, 0.467301),
    Sketcher.Constraint("DistanceX", 1, 2, -1, 1, 1.529599),
    Sketcher.Constraint("DistanceX", 2, 2, 7, 2, 0.237899),
    Sketcher.Constraint("DistanceX", 10, 2, 5, 2, 0.916198),
    Sketcher.Constraint("DistanceY", 9, 2, 11, 2, 0.728102),
    Sketcher.Constraint("Distance", 0, 0.93139),
    Sketcher.Constraint("Distance", 3, 0.548409),
    Sketcher.Constraint("DistanceX", 1, 1, 1, 2, 0.469624),
    Sketcher.Constraint("DistanceX", 2, 2, -1, 1, 1.25795),
    Sketcher.Constraint("DistanceY", -1, 1, 2, 2, 0.312172),
    Sketcher.Constraint("DistanceX", 5, 2, -1, 1, 1.030341),
    Sketcher.Constraint("DistanceY", 6, 2, -1, 1, 0.724211),
    Sketcher.Constraint("DistanceX", 1, 2, 3, 2, 0.562231),
    Sketcher.Constraint("DistanceY", 5, 2, 3, 2, 0.790252),
])
pad4 = doc.addObject("PartDesign::Pad", "Pad003")
body5.addObject(pad4)
pad4.Profile = sketch8
pad4.Length = 0.0254
pad4.Reversed = True
body6 = doc.addObject("PartDesign::Body", "Body005")

# Sketch on XZ plane
sketch9 = doc.addObject("Sketcher::SketchObject", "Sketch008")
body6.addObject(sketch9)
sketch9.AttachmentSupport = (doc.getObject("XZ_Plane005"), [""])
sketch9.MapMode = "FlatFace"
sketch9.AttachmentOffset = App.Placement(App.Vector(0, 0, -5.8), App.Rotation())
sketch9.addGeometry([
    Part.LineSegment(App.Vector(0.100296, 0.003891, 0), App.Vector(-0.418719, 0.777268, 0)),  # 0
    Part.LineSegment(App.Vector(-0.418719, 0.777268, 0), App.Vector(0.050905, 0.777268, 0)),  # 1
    Part.LineSegment(App.Vector(0.050905, 0.777268, 0), App.Vector(0.322554, 0.312172, 0)),  # 2
    Part.LineSegment(App.Vector(0.322554, 0.312172, 0), App.Vector(0.613136, 0.777268, 0)),  # 3
    Part.LineSegment(App.Vector(0.613136, 0.777268, 0), App.Vector(1.08276, 0.777268, 0)),  # 4
    Part.LineSegment(App.Vector(1.08276, 0.777268, 0), App.Vector(0.550163, -0.012984, 0)),  # 5
    Part.LineSegment(App.Vector(0.550163, -0.012984, 0), App.Vector(1.030077, -0.724211, 0)),  # 6
    Part.LineSegment(App.Vector(1.030077, -0.724211, 0), App.Vector(0.560453, -0.724211, 0)),  # 7
    Part.LineSegment(App.Vector(0.560453, -0.724211, 0), App.Vector(0.322554, -0.311387, 0)),  # 8
    Part.LineSegment(App.Vector(0.322554, -0.311387, 0), App.Vector(0.103589, -0.724211, 0)),  # 9
    Part.LineSegment(App.Vector(0.103589, -0.724211, 0), App.Vector(-0.366035, -0.724211, 0)),  # 10
    Part.LineSegment(App.Vector(-0.366035, -0.724211, 0), App.Vector(0.100296, 0.003891, 0)),  # 11
], False)
sketch9.addConstraint([
    Sketcher.Constraint("Coincident", 0, 2, 1, 1),
    Sketcher.Constraint("Coincident", 1, 2, 2, 1),
    Sketcher.Constraint("Coincident", 2, 2, 3, 1),
    Sketcher.Constraint("Coincident", 3, 2, 4, 1),
    Sketcher.Constraint("Coincident", 4, 2, 5, 1),
    Sketcher.Constraint("Coincident", 5, 2, 6, 1),
    Sketcher.Constraint("Coincident", 6, 2, 7, 1),
    Sketcher.Constraint("Coincident", 7, 2, 8, 1),
    Sketcher.Constraint("Coincident", 8, 2, 9, 1),
    Sketcher.Constraint("Coincident", 9, 2, 10, 1),
    Sketcher.Constraint("Coincident", 10, 2, 11, 1),
    Sketcher.Constraint("Coincident", 11, 2, 0, 1),
    Sketcher.Constraint("Horizontal", 1),
    Sketcher.Constraint("Horizontal", 4),
    Sketcher.Constraint("Horizontal", 7),
    Sketcher.Constraint("Horizontal", 10),
    Sketcher.Constraint("Horizontal", 1, 2, 3, 2),
    Sketcher.Constraint("Horizontal", 7, 2, 9, 2),
    Sketcher.Constraint("Vertical", 2, 2, 8, 2),
    Sketcher.Constraint("Equal", 1, 4),
    Sketcher.Constraint("Equal", 4, 7),
    Sketcher.Constraint("Equal", 7, 10),
    Sketcher.Constraint("Distance", 9, 0.467301),
    Sketcher.Constraint("DistanceX", 2, 2, 7, 2, 0.237899),
    Sketcher.Constraint("DistanceX", 10, 2, 5, 2, 0.916198),
    Sketcher.Constraint("DistanceY", 9, 2, 11, 2, 0.728102),
    Sketcher.Constraint("Distance", 0, 0.93139),
    Sketcher.Constraint("Distance", 3, 0.548409),
    Sketcher.Constraint("DistanceX", 1, 1, 1, 2, 0.469624),
    Sketcher.Constraint("DistanceX", 0, 2, -1, 1, 0.418719),
    Sketcher.Constraint("DistanceY", -1, 1, 2, 2, 0.312172),
    Sketcher.Constraint("DistanceX", -1, 1, 4, 2, 1.08276),
    Sketcher.Constraint("DistanceY", 6, 2, -1, 1, 0.724211),
    Sketcher.Constraint("DistanceX", -1, 1, 9, 2, 0.103589),
    Sketcher.Constraint("DistanceX", 1, 2, 2, 2, 0.271649),
    Sketcher.Constraint("DistanceY", 5, 2, 3, 2, 0.790252),
])
pad5 = doc.addObject("PartDesign::Pad", "Pad004")
body6.addObject(pad5)
pad5.Profile = sketch9
pad5.Length = 0.0254
pad5.Reversed = True
body7 = doc.addObject("PartDesign::Body", "Body006")

# Sketch on XZ plane
sketch10 = doc.addObject("Sketcher::SketchObject", "Sketch009")
body7.addObject(sketch10)
sketch10.AttachmentSupport = (doc.getObject("XZ_Plane006"), [""])
sketch10.MapMode = "FlatFace"
sketch10.AttachmentOffset = App.Placement(App.Vector(0, 0, -5.8), App.Rotation())
sketch10.addGeometry([
    Part.LineSegment(App.Vector(1.6808, 0.003891, 0), App.Vector(1.161785, 0.777268, 0)),  # 0
    Part.LineSegment(App.Vector(1.161785, 0.777268, 0), App.Vector(1.631409, 0.777268, 0)),  # 1
    Part.LineSegment(App.Vector(1.631409, 0.777268, 0), App.Vector(1.903058, 0.312172, 0)),  # 2
    Part.LineSegment(App.Vector(1.903058, 0.312172, 0), App.Vector(2.19364, 0.777268, 0)),  # 3
    Part.LineSegment(App.Vector(2.19364, 0.777268, 0), App.Vector(2.663264, 0.777268, 0)),  # 4
    Part.LineSegment(App.Vector(2.663264, 0.777268, 0), App.Vector(2.130667, -0.012984, 0)),  # 5
    Part.LineSegment(App.Vector(2.130667, -0.012984, 0), App.Vector(2.61058, -0.724211, 0)),  # 6
    Part.LineSegment(App.Vector(2.61058, -0.724211, 0), App.Vector(2.140957, -0.724211, 0)),  # 7
    Part.LineSegment(App.Vector(2.140957, -0.724211, 0), App.Vector(1.903058, -0.311387, 0)),  # 8
    Part.LineSegment(App.Vector(1.903058, -0.311387, 0), App.Vector(1.684092, -0.724211, 0)),  # 9
    Part.LineSegment(App.Vector(1.684092, -0.724211, 0), App.Vector(1.214469, -0.724211, 0)),  # 10
    Part.LineSegment(App.Vector(1.214469, -0.724211, 0), App.Vector(1.6808, 0.003891, 0)),  # 11
], False)
sketch10.addConstraint([
    Sketcher.Constraint("Coincident", 0, 2, 1, 1),
    Sketcher.Constraint("Coincident", 1, 2, 2, 1),
    Sketcher.Constraint("Coincident", 2, 2, 3, 1),
    Sketcher.Constraint("Coincident", 3, 2, 4, 1),
    Sketcher.Constraint("Coincident", 4, 2, 5, 1),
    Sketcher.Constraint("Coincident", 5, 2, 6, 1),
    Sketcher.Constraint("Coincident", 6, 2, 7, 1),
    Sketcher.Constraint("Coincident", 7, 2, 8, 1),
    Sketcher.Constraint("Coincident", 8, 2, 9, 1),
    Sketcher.Constraint("Coincident", 9, 2, 10, 1),
    Sketcher.Constraint("Coincident", 10, 2, 11, 1),
    Sketcher.Constraint("Coincident", 11, 2, 0, 1),
    Sketcher.Constraint("Horizontal", 1),
    Sketcher.Constraint("Horizontal", 4),
    Sketcher.Constraint("Horizontal", 7),
    Sketcher.Constraint("Horizontal", 10),
    Sketcher.Constraint("Horizontal", 1, 2, 3, 2),
    Sketcher.Constraint("Horizontal", 7, 2, 9, 2),
    Sketcher.Constraint("Vertical", 2, 2, 8, 2),
    Sketcher.Constraint("Equal", 1, 4),
    Sketcher.Constraint("Equal", 4, 7),
    Sketcher.Constraint("Equal", 7, 10),
    Sketcher.Constraint("Distance", 9, 0.467301),
    Sketcher.Constraint("DistanceX", -1, 1, 11, 2, 1.6808),
    Sketcher.Constraint("DistanceX", 2, 2, 7, 2, 0.237899),
    Sketcher.Constraint("DistanceX", 10, 2, 5, 2, 0.916198),
    Sketcher.Constraint("DistanceY", 9, 2, 11, 2, 0.728102),
    Sketcher.Constraint("Distance", 0, 0.93139),
    Sketcher.Constraint("Distance", 3, 0.548409),
    Sketcher.Constraint("DistanceX", 1, 1, 1, 2, 0.469624),
    Sketcher.Constraint("DistanceX", -1, 1, 1, 2, 1.631409),
    Sketcher.Constraint("DistanceY", -1, 1, 2, 2, 0.312172),
    Sketcher.Constraint("DistanceX", -1, 1, 3, 2, 2.19364),
    Sketcher.Constraint("DistanceX", -1, 1, 6, 2, 2.61058),
    Sketcher.Constraint("DistanceX", -1, 1, 10, 2, 1.214469),
    Sketcher.Constraint("DistanceY", 5, 2, 3, 2, 0.790252),
])
pad6 = doc.addObject("PartDesign::Pad", "Pad005")
body7.addObject(pad6)
pad6.Profile = sketch10
pad6.Length = 0.0254
pad6.Reversed = True

doc.recompute()
